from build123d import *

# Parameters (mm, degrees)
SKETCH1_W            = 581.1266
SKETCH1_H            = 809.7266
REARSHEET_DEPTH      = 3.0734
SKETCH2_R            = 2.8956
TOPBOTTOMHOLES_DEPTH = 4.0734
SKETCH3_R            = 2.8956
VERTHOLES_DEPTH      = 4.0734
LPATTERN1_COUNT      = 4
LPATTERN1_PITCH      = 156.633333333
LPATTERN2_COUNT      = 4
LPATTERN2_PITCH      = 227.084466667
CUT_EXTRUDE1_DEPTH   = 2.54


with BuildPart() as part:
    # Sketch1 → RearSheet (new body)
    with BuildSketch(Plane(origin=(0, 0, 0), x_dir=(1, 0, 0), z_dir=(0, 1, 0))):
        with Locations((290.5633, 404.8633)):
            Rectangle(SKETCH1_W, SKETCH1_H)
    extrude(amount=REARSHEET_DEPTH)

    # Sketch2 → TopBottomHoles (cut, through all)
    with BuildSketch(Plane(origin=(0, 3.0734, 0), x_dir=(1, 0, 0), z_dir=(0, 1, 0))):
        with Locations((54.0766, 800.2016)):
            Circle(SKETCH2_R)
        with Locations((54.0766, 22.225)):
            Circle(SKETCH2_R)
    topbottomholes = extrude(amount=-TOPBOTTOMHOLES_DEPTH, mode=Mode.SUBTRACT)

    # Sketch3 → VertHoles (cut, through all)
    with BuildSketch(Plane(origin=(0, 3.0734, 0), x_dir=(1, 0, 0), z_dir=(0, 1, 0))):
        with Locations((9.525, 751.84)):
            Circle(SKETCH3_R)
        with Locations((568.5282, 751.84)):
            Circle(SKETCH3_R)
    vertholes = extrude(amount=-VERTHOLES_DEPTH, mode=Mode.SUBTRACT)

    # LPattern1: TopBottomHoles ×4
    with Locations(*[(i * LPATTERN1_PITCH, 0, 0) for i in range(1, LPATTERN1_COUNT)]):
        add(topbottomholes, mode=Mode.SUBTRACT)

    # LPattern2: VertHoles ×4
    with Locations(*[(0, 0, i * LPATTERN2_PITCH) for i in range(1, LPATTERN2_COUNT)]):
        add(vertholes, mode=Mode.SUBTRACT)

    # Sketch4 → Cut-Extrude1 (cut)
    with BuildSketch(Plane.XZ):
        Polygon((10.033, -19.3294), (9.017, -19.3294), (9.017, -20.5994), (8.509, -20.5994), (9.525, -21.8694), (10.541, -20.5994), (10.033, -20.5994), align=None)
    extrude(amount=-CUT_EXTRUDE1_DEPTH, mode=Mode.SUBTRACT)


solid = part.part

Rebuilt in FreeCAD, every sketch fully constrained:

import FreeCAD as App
import Part
import Sketcher
Q = App.Units.Quantity

doc = App.newDocument("Part")
params = doc.addObject("Spreadsheet::Sheet", "Params")
for row, (alias, value) in enumerate([
    ("sketch1_width", "22.879 in"),
    ("sketch1_height", "31.879 in"),
    ("pad1_length", "0.121 in"),
    ("sketch2_diameter", "0.228 in"),
    ("sketch3_diameter", "0.228 in"),
    ("linearpattern_pitch", "156.633333 mm"),
    ("linearpattern2_pitch", "227.084467 mm"),
    ("sketch4_width", "0.04 in"),
    ("sketch4_width2", "0.02 in"),
    ("sketch4_height", "0.05 in"),
    ("pocket3_length", "0.1 in"),
], start=1):
    params.set(f"A{row}", alias)
    params.set(f"B{row}", "=" + value)
    params.setAlias(f"B{row}", alias)

body = doc.addObject("PartDesign::Body", "Body")

# Sketch on XZ plane
sketch1 = doc.addObject("Sketcher::SketchObject", "Sketch")
body.addObject(sketch1)
sketch1.AttachmentSupport = (doc.XZ_Plane, [""])
sketch1.MapMode = "FlatFace"
sketch1.addGeometry(Part.LineSegment(App.Vector(0, -810, 0), App.Vector(0, 0, 0)), False)
sketch1.addGeometry(Part.LineSegment(App.Vector(0, 0, 0), App.Vector(581, 0, 0)), False)
sketch1.addGeometry(Part.LineSegment(App.Vector(581, 0, 0), App.Vector(581, -810, 0)), False)
sketch1.addGeometry(Part.LineSegment(App.Vector(581, -810, 0), App.Vector(0, -810, 0)), False)
sketch1.addConstraint(Sketcher.Constraint("Coincident", 0, 2, 1, 1))
sketch1.addConstraint(Sketcher.Constraint("Coincident", 1, 2, 2, 1))
sketch1.addConstraint(Sketcher.Constraint("Coincident", 2, 2, 3, 1))
sketch1.addConstraint(Sketcher.Constraint("Coincident", 3, 2, 0, 1))
sketch1.addConstraint(Sketcher.Constraint("Vertical", 0))
sketch1.addConstraint(Sketcher.Constraint("Horizontal", 1))
sketch1.addConstraint(Sketcher.Constraint("Vertical", 2))
sketch1.addConstraint(Sketcher.Constraint("Horizontal", 3))
sketch1.addConstraint(Sketcher.Constraint("Coincident", 0, 2, -1, 1))
sketch1.addConstraint(Sketcher.Constraint("DistanceX", 1, 1, 1, 2, Q("22.879 in")))
sketch1.addConstraint(Sketcher.Constraint("DistanceY", 0, 1, 0, 2, Q("31.879 in")))
sketch1.setExpression("Constraints[9]", "Params.sketch1_width")
sketch1.setExpression("Constraints[10]", "Params.sketch1_height")
pad1 = doc.addObject("PartDesign::Pad", "Pad")
body.addObject(pad1)
pad1.Profile = sketch1
pad1.setExpression("Length", "Params.pad1_length")
pad1.Reversed = True

# Sketch on XZ plane
sketch2 = doc.addObject("Sketcher::SketchObject", "Sketch001")
body.addObject(sketch2)
sketch2.AttachmentSupport = (doc.XZ_Plane, [""])
sketch2.MapMode = "FlatFace"
sketch2.AttachmentOffset = App.Placement(App.Vector(0, 0, -0.121 * 25.4), App.Rotation())
sketch2.addGeometry(Part.Circle(App.Vector(54.1, -800.2, 0), App.Vector(0, 0, 1), 2.9), False)
sketch2.addGeometry(Part.Circle(App.Vector(54.1, -22.2, 0), App.Vector(0, 0, 1), 2.9), False)
sketch2.addConstraint(Sketcher.Constraint("Equal", 0, 1))
sketch2.addConstraint(Sketcher.Constraint("Vertical", 0, 3, 1, 3))
sketch2.addConstraint(Sketcher.Constraint("Diameter", 0, Q("0.228 in")))
sketch2.addConstraint(Sketcher.Constraint("DistanceX", -1, 1, 0, 3, Q("2.129 in")))
sketch2.addConstraint(Sketcher.Constraint("DistanceY", 0, 3, -1, 1, Q("31.504 in")))
sketch2.addConstraint(Sketcher.Constraint("DistanceY", 1, 3, -1, 1, Q("0.875 in")))
sketch2.setExpression("Constraints[2]", "Params.sketch2_diameter")
pocket1 = doc.addObject("PartDesign::Pocket", "Pocket")
body.addObject(pocket1)
pocket1.Profile = sketch2
pocket1.Type = "ThroughAll"
pocket1.Reversed = True

# Sketch on XZ plane
sketch3 = doc.addObject("Sketcher::SketchObject", "Sketch002")
body.addObject(sketch3)
sketch3.AttachmentSupport = (doc.XZ_Plane, [""])
sketch3.MapMode = "FlatFace"
sketch3.AttachmentOffset = App.Placement(App.Vector(0, 0, -0.121 * 25.4), App.Rotation())
sketch3.addGeometry(Part.Circle(App.Vector(9.5, -751.8, 0), App.Vector(0, 0, 1), 2.9), False)
sketch3.addGeometry(Part.Circle(App.Vector(568.5, -751.8, 0), App.Vector(0, 0, 1), 2.9), False)
sketch3.addConstraint(Sketcher.Constraint("Equal", 0, 1))
sketch3.addConstraint(Sketcher.Constraint("Horizontal", 0, 3, 1, 3))
sketch3.addConstraint(Sketcher.Constraint("Diameter", 0, Q("0.228 in")))
sketch3.addConstraint(Sketcher.Constraint("DistanceY", 0, 3, -1, 1, Q("29.6 in")))
sketch3.addConstraint(Sketcher.Constraint("DistanceX", -1, 1, 0, 3, Q("0.375 in")))
sketch3.addConstraint(Sketcher.Constraint("DistanceX", -1, 1, 1, 3, Q("22.383 in")))
sketch3.setExpression("Constraints[2]", "Params.sketch3_diameter")
pocket2 = doc.addObject("PartDesign::Pocket", "Pocket001")
body.addObject(pocket2)
pocket2.Profile = sketch3
pocket2.Type = "ThroughAll"
pocket2.Reversed = True
doc.recompute()

linearpattern = doc.addObject("PartDesign::LinearPattern", "LinearPattern")
body.addObject(linearpattern)
linearpattern.Originals = [pocket1]
linearpattern.Direction = (doc.X_Axis, [""])
linearpattern.Mode = "offset"
linearpattern.setExpression("Offset", "Params.linearpattern_pitch")
linearpattern.Occurrences = 4
body.Tip = linearpattern
doc.recompute()

linearpattern2 = doc.addObject("PartDesign::LinearPattern", "LinearPattern001")
body.addObject(linearpattern2)
linearpattern2.Originals = [pocket2]
linearpattern2.Direction = (doc.Z_Axis, [""])
linearpattern2.Mode = "offset"
linearpattern2.setExpression("Offset", "Params.linearpattern2_pitch")
linearpattern2.Occurrences = 4
body.Tip = linearpattern2

# Sketch on XZ plane
sketch4 = doc.addObject("Sketcher::SketchObject", "Sketch003")
body.addObject(sketch4)
sketch4.AttachmentSupport = (doc.XZ_Plane, [""])
sketch4.MapMode = "FlatFace"
sketch4.addGeometry(Part.LineSegment(App.Vector(10, -19.3, 0), App.Vector(9, -19.3, 0)), False)
sketch4.addGeometry(Part.LineSegment(App.Vector(9, -19.3, 0), App.Vector(9, -20.6, 0)), False)
sketch4.addGeometry(Part.LineSegment(App.Vector(9, -20.6, 0), App.Vector(8.5, -20.6, 0)), False)
sketch4.addGeometry(Part.LineSegment(App.Vector(8.5, -20.6, 0), App.Vector(9.5, -21.9, 0)), False)
sketch4.addGeometry(Part.LineSegment(App.Vector(9.5, -21.9, 0), App.Vector(10.5, -20.6, 0)), False)
sketch4.addGeometry(Part.LineSegment(App.Vector(10.5, -20.6, 0), App.Vector(10, -20.6, 0)), False)
sketch4.addGeometry(Part.LineSegment(App.Vector(10, -20.6, 0), App.Vector(10, -19.3, 0)), False)
sketch4.addConstraint(Sketcher.Constraint("Coincident", 0, 2, 1, 1))
sketch4.addConstraint(Sketcher.Constraint("Coincident", 1, 2, 2, 1))
sketch4.addConstraint(Sketcher.Constraint("Coincident", 2, 2, 3, 1))
sketch4.addConstraint(Sketcher.Constraint("Coincident", 3, 2, 4, 1))
sketch4.addConstraint(Sketcher.Constraint("Coincident", 4, 2, 5, 1))
sketch4.addConstraint(Sketcher.Constraint("Coincident", 5, 2, 6, 1))
sketch4.addConstraint(Sketcher.Constraint("Coincident", 6, 2, 0, 1))
sketch4.addConstraint(Sketcher.Constraint("Horizontal", 0))
sketch4.addConstraint(Sketcher.Constraint("Vertical", 1))
sketch4.addConstraint(Sketcher.Constraint("Horizontal", 2))
sketch4.addConstraint(Sketcher.Constraint("Horizontal", 5))
sketch4.addConstraint(Sketcher.Constraint("Vertical", 6))
sketch4.addConstraint(Sketcher.Constraint("Horizontal", 2, 2, 4, 2))
sketch4.addConstraint(Sketcher.Constraint("Equal", 2, 5))
sketch4.addConstraint(Sketcher.Constraint("Equal", 3, 4))
sketch4.addConstraint(Sketcher.Constraint("DistanceX", 0, 2, 0, 1, Q("0.04 in")))
sketch4.addConstraint(Sketcher.Constraint("DistanceX", 2, 2, 2, 1, Q("0.02 in")))
sketch4.addConstraint(Sketcher.Constraint("DistanceY", 1, 2, 1, 1, Q("0.05 in")))
sketch4.addConstraint(Sketcher.Constraint("DistanceY", 3, 2, 0, 2, Q("0.1 in")))
sketch4.addConstraint(Sketcher.Constraint("DistanceX", -1, 1, 0, 2, Q("0.355 in")))
sketch4.addConstraint(Sketcher.Constraint("DistanceY", 0, 2, -1, 1, Q("0.761 in")))
sketch4.setExpression("Constraints[15]", "Params.sketch4_width")
sketch4.setExpression("Constraints[16]", "Params.sketch4_width2")
sketch4.setExpression("Constraints[17]", "Params.sketch4_height")
pocket3 = doc.addObject("PartDesign::Pocket", "Pocket002")
body.addObject(pocket3)
pocket3.Profile = sketch4
pocket3.setExpression("Length", "Params.pocket3_length")

doc.recompute()
